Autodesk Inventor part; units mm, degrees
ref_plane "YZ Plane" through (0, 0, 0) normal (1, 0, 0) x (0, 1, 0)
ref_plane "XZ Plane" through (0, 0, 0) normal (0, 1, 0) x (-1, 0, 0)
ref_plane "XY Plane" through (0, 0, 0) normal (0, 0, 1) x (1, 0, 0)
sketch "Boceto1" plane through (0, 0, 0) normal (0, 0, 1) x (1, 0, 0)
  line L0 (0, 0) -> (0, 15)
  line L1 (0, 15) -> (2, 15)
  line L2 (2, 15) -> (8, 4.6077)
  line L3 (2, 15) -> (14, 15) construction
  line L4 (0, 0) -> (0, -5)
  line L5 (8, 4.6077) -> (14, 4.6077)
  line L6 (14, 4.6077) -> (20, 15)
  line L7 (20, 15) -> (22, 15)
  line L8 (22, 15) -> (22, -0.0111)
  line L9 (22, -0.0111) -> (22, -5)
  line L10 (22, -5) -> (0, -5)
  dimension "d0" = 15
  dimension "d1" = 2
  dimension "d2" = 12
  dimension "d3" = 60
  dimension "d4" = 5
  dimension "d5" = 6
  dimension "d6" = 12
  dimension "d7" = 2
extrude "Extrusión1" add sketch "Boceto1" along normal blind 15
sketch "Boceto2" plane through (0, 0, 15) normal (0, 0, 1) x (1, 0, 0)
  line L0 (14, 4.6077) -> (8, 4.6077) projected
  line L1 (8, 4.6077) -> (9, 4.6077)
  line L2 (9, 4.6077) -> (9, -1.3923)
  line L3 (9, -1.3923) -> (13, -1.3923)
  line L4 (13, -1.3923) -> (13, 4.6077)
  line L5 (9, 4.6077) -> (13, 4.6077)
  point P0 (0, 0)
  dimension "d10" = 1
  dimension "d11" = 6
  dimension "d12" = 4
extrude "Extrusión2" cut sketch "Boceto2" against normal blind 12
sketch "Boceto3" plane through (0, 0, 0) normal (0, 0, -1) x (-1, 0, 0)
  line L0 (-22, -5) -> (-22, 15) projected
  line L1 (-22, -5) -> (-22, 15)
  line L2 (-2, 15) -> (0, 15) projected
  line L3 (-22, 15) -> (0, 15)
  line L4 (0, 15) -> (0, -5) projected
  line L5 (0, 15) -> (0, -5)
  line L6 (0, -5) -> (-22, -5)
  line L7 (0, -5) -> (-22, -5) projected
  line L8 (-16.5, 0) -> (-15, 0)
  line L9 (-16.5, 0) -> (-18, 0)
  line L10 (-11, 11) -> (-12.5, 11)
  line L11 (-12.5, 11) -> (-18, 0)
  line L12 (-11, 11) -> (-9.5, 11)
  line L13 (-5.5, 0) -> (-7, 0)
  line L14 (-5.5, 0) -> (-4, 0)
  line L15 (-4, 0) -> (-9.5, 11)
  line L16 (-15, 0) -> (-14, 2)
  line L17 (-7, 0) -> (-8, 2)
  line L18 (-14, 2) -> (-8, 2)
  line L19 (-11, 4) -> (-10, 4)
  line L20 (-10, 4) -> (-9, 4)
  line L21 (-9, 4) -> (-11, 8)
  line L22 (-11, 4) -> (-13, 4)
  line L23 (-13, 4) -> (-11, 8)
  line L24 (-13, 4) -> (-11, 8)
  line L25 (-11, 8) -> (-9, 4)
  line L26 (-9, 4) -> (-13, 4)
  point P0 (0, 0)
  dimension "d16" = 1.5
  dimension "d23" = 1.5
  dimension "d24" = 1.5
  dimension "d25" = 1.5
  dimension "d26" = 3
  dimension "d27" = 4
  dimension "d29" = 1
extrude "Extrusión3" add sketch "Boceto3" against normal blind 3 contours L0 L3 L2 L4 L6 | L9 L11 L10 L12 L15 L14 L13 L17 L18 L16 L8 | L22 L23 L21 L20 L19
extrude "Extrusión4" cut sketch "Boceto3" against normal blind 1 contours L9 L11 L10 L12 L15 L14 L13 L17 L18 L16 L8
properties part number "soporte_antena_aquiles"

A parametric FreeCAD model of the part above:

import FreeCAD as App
import Part
import Sketcher

V = App.Vector
Q = App.Units.Quantity

doc = App.newDocument("Part")
body = doc.addObject("PartDesign::Body", "Body")

# Sketch on XY plane
sketch1 = doc.addObject("Sketcher::SketchObject", "Sketch")
body.addObject(sketch1)
sketch1.AttachmentSupport = (doc.XY_Plane, [""])
sketch1.MapMode = "FlatFace"
sketch1.addGeometry([
    Part.LineSegment(V(0, 15, 0), V(0, -5, 0)),  # 0
    Part.LineSegment(V(0, -5, 0), V(22, -5, 0)),  # 1
    Part.LineSegment(V(22, -5, 0), V(22, 15, 0)),  # 2
    Part.LineSegment(V(22, 15, 0), V(20, 15, 0)),  # 3
    Part.LineSegment(V(20, 15, 0), V(14, 4.6077, 0)),  # 4
    Part.LineSegment(V(14, 4.6077, 0), V(8, 4.6077, 0)),  # 5
    Part.LineSegment(V(8, 4.6077, 0), V(2, 15, 0)),  # 6
    Part.LineSegment(V(2, 15, 0), V(0, 15, 0)),  # 7
], False)
sketch1.addConstraint([
    Sketcher.Constraint("Coincident", 0, 2, 1, 1),
    Sketcher.Constraint("Coincident", 1, 2, 2, 1),
    Sketcher.Constraint("Coincident", 2, 2, 3, 1),
    Sketcher.Constraint("Coincident", 3, 2, 4, 1),
    Sketcher.Constraint("Coincident", 4, 2, 5, 1),
    Sketcher.Constraint("Coincident", 5, 2, 6, 1),
    Sketcher.Constraint("Coincident", 6, 2, 7, 1),
    Sketcher.Constraint("Coincident", 7, 2, 0, 1),
    Sketcher.Constraint("Vertical", 0),
    Sketcher.Constraint("Horizontal", 1),
    Sketcher.Constraint("Vertical", 2),
    Sketcher.Constraint("Horizontal", 3),
    Sketcher.Constraint("Horizontal", 5),
    Sketcher.Constraint("Horizontal", 7),
    Sketcher.Constraint("PointOnObject", 0, 2, -2),
    Sketcher.Constraint("Horizontal", 3, 2, 6, 2),
    Sketcher.Constraint("Equal", 3, 7),
    Sketcher.Constraint("Equal", 4, 6),
    Sketcher.Constraint("DistanceX", 3, 2, 3, 1, Q("2 mm")),
    Sketcher.Constraint("DistanceX", 5, 2, 5, 1, Q("6 mm")),
    Sketcher.Constraint("Distance", 4, Q("12 mm")),
    Sketcher.Constraint("DistanceY", 0, 2, -1, 1, Q("5 mm")),
    Sketcher.Constraint("DistanceY", -1, 1, 2, 2, Q("15 mm")),
    Sketcher.Constraint("DistanceX", 4, 2, 3, 2, Q("6 mm")),
])
pad1 = doc.addObject("PartDesign::Pad", "Pad")
body.addObject(pad1)
pad1.Profile = sketch1
pad1.Length = 15

# Sketch on XY plane
sketch2 = doc.addObject("Sketcher::SketchObject", "Sketch001")
body.addObject(sketch2)
sketch2.AttachmentSupport = (doc.XY_Plane, [""])
sketch2.MapMode = "FlatFace"
sketch2.AttachmentOffset = App.Placement(V(0, 0, 15), App.Rotation())
sketch2.addGeometry([
    Part.LineSegment(V(13, -1.3923, 0), V(13, 4.6077, 0)),
    Part.LineSegment(V(13, 4.6077, 0), V(9, 4.6077, 0)),
    Part.LineSegment(V(9, 4.6077, 0), V(9, -1.3923, 0)),
    Part.LineSegment(V(9, -1.3923, 0), V(13, -1.3923, 0)),
], False)
sketch2.addConstraint([
    Sketcher.Constraint("Coincident", 0, 2, 1, 1),
    Sketcher.Constraint("Coincident", 1, 2, 2, 1),
    Sketcher.Constraint("Coincident", 2, 2, 3, 1),
    Sketcher.Constraint("Coincident", 3, 2, 0, 1),
    Sketcher.Constraint("Vertical", 0),
    Sketcher.Constraint("Horizontal", 1),
    Sketcher.Constraint("Vertical", 2),
    Sketcher.Constraint("Horizontal", 3),
    Sketcher.Constraint("DistanceX", 1, 2, 1, 1, Q("4 mm")),
    Sketcher.Constraint("DistanceY", 0, 1, 0, 2, Q("6 mm")),
    Sketcher.Constraint("DistanceX", -1, 1, 0, 2, Q("13 mm")),
    Sketcher.Constraint("DistanceY", -1, 1, 0, 2, Q("4.6077 mm")),
])
pocket1 = doc.addObject("PartDesign::Pocket", "Pocket")
body.addObject(pocket1)
pocket1.Profile = sketch2
pocket1.Length = 12

# Sketch on XY plane
sketch3 = doc.addObject("Sketcher::SketchObject", "Sketch002")
body.addObject(sketch3)
sketch3.AttachmentSupport = (doc.XY_Plane, [""])
sketch3.MapMode = "FlatFace"
sketch3.addGeometry([
    Part.LineSegment(V(22, 15, 0), V(22, -5, 0)),
    Part.LineSegment(V(22, -5, 0), V(0, -5, 0)),
    Part.LineSegment(V(0, -5, 0), V(0, 15, 0)),
    Part.LineSegment(V(0, 15, 0), V(22, 15, 0)),
], False)
sketch3.addConstraint([
    Sketcher.Constraint("Coincident", 0, 2, 1, 1),
    Sketcher.Constraint("Coincident", 1, 2, 2, 1),
    Sketcher.Constraint("Coincident", 2, 2, 3, 1),
    Sketcher.Constraint("Coincident", 3, 2, 0, 1),
    Sketcher.Constraint("Vertical", 0),
    Sketcher.Constraint("Horizontal", 1),
    Sketcher.Constraint("Vertical", 2),
    Sketcher.Constraint("Horizontal", 3),
    Sketcher.Constraint("PointOnObject", 1, 2, -2),
    Sketcher.Constraint("DistanceX", 1, 2, 1, 1, Q("22 mm")),
    Sketcher.Constraint("DistanceY", 0, 2, 0, 1, Q("20 mm")),
    Sketcher.Constraint("DistanceY", 0, 2, -1, 1, Q("5 mm")),
])
pad2 = doc.addObject("PartDesign::Pad", "Pad001")
body.addObject(pad2)
pad2.Profile = sketch3
pad2.Length = 3

# Sketch on XY plane
sketch4 = doc.addObject("Sketcher::SketchObject", "Sketch003")
body.addObject(sketch4)
sketch4.AttachmentSupport = (doc.XY_Plane, [""])
sketch4.MapMode = "FlatFace"
sketch4.addGeometry([
    Part.LineSegment(V(18, 0, 0), V(15, 0, 0)),  # 0
    Part.LineSegment(V(15, 0, 0), V(14, 2, 0)),  # 1
    Part.LineSegment(V(14, 2, 0), V(8, 2, 0)),  # 2
    Part.LineSegment(V(8, 2, 0), V(7, 0, 0)),  # 3
    Part.LineSegment(V(7, 0, 0), V(4, 0, 0)),  # 4
    Part.LineSegment(V(4, 0, 0), V(9.5, 11, 0)),  # 5
    Part.LineSegment(V(9.5, 11, 0), V(12.5, 11, 0)),  # 6
    Part.LineSegment(V(12.5, 11, 0), V(18, 0, 0)),  # 7
    Part.LineSegment(V(9, 4, 0), V(13, 4, 0)),  # 8
    Part.LineSegment(V(13, 4, 0), V(11, 8, 0)),  # 9
    Part.LineSegment(V(11, 8, 0), V(9, 4, 0)),  # 10
], False)
sketch4.addConstraint([
    Sketcher.Constraint("Coincident", 0, 2, 1, 1),
    Sketcher.Constraint("Coincident", 1, 2, 2, 1),
    Sketcher.Constraint("Coincident", 2, 2, 3, 1),
    Sketcher.Constraint("Coincident", 3, 2, 4, 1),
    Sketcher.Constraint("Coincident", 4, 2, 5, 1),
    Sketcher.Constraint("Coincident", 5, 2, 6, 1),
    Sketcher.Constraint("Coincident", 6, 2, 7, 1),
    Sketcher.Constraint("Coincident", 7, 2, 0, 1),
    Sketcher.Constraint("Coincident", 8, 2, 9, 1),
    Sketcher.Constraint("Coincident", 9, 2, 10, 1),
    Sketcher.Constraint("Coincident", 10, 2, 8, 1),
    Sketcher.Constraint("Horizontal", 0),
    Sketcher.Constraint("Horizontal", 2),
    Sketcher.Constraint("Horizontal", 4),
    Sketcher.Constraint("Horizontal", 6),
    Sketcher.Constraint("Horizontal", 8),
    Sketcher.Constraint("PointOnObject", 0, 2, -1),
    Sketcher.Constraint("PointOnObject", 3, 2, -1),
    Sketcher.Constraint("Parallel", 3, 5),
    Sketcher.Constraint("Parallel", 1, 7),
    Sketcher.Constraint("Parallel", 7, 9),
    Sketcher.Constraint("Parallel", 5, 10),
    Sketcher.Constraint("Equal", 0, 4),
    Sketcher.Constraint("Equal", 4, 6),
    Sketcher.Constraint("Equal", 1, 3),
    Sketcher.Constraint("DistanceX", 0, 2, 0, 1, Q("3 mm")),
    Sketcher.Constraint("DistanceX", 8, 1, 8, 2, Q("4 mm")),
    Sketcher.Constraint("DistanceX", -1, 1, 4, 2, Q("4 mm")),
    Sketcher.Constraint("DistanceY", -1, 1, 8, 2, Q("4 mm")),
    Sketcher.Constraint("DistanceX", 1, 2, 0, 2, Q("1 mm")),
    Sketcher.Constraint("DistanceX", 8, 2, 1, 2, Q("1 mm")),
    Sketcher.Constraint("DistanceY", 9, 2, 5, 2, Q("3 mm")),
    Sketcher.Constraint("DistanceY", 8, 2, 9, 2, Q("4 mm")),
])
pocket2 = doc.addObject("PartDesign::Pocket", "Pocket001")
body.addObject(pocket2)
pocket2.Profile = sketch4
pocket2.Length = 1
pocket2.Reversed = True

doc.recompute()
